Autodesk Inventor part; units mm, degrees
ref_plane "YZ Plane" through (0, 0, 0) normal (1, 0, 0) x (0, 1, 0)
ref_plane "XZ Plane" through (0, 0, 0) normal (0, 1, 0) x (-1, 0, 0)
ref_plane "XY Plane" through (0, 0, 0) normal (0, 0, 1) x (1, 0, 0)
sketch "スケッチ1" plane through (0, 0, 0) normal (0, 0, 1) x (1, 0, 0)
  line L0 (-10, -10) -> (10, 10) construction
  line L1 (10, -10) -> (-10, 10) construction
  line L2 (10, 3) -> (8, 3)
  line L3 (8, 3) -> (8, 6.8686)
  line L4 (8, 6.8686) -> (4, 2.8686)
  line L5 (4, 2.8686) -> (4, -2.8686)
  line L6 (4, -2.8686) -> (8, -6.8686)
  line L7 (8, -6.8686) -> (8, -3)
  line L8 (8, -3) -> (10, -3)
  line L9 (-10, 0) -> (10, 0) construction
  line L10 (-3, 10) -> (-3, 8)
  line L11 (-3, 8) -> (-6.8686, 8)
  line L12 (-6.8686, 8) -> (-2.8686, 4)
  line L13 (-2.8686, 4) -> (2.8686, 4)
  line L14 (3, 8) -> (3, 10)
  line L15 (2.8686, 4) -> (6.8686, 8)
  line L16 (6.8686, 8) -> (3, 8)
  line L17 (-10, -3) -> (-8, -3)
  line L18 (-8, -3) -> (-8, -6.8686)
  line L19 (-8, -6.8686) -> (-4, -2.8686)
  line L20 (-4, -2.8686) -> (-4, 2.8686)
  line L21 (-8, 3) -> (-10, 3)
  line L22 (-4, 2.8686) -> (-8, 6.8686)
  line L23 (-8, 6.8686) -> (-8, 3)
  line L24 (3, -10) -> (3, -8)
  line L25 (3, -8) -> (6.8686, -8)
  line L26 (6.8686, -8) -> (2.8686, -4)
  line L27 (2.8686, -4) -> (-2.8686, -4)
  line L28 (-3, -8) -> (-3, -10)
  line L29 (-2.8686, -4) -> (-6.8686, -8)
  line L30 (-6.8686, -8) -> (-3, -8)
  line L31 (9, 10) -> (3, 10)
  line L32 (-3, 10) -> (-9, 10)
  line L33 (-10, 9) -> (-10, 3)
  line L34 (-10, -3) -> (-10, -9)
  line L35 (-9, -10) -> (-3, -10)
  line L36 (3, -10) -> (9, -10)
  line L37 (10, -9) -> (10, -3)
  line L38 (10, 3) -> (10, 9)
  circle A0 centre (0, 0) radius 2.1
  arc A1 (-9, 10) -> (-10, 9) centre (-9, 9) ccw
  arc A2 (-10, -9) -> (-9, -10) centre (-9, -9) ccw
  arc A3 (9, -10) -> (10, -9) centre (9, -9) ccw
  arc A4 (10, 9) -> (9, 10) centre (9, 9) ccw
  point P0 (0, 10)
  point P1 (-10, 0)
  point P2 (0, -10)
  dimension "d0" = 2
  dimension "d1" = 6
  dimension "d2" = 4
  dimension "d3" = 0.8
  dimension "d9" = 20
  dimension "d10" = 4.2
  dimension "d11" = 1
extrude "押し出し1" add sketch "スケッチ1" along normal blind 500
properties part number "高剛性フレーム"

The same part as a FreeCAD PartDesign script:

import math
import FreeCAD as App
import Part
import Sketcher
Q = App.Units.Quantity

doc = App.newDocument("Part")
body = doc.addObject("PartDesign::Body", "Body")

# Sketch on XY plane
sketch1 = body.newObject("Sketcher::SketchObject", "Sketch")
sketch1.AttachmentSupport = (doc.getObject("XY_Plane"), [""])
sketch1.MapMode = "FlatFace"
sketch1.addGeometry(Part.LineSegment(App.Vector(8, 3, 0), App.Vector(10, 3, 0)), False)
sketch1.addGeometry(Part.LineSegment(App.Vector(10, 3, 0), App.Vector(10, 9, 0)), False)
sketch1.addGeometry(Part.ArcOfCircle(Part.Circle(App.Vector(9, 9, 0), App.Vector(0, 0, 1), 1), math.radians(0), math.radians(90)), False)
sketch1.addGeometry(Part.LineSegment(App.Vector(9, 10, 0), App.Vector(3, 10, 0)), False)
sketch1.addGeometry(Part.LineSegment(App.Vector(3, 10, 0), App.Vector(3, 8, 0)), False)
sketch1.addGeometry(Part.LineSegment(App.Vector(3, 8, 0), App.Vector(6.8686, 8, 0)), False)
sketch1.addGeometry(Part.LineSegment(App.Vector(6.8686, 8, 0), App.Vector(2.8686, 4, 0)), False)
sketch1.addGeometry(Part.LineSegment(App.Vector(2.8686, 4, 0), App.Vector(-2.8686, 4, 0)), False)
sketch1.addGeometry(Part.LineSegment(App.Vector(-2.8686, 4, 0), App.Vector(-6.8686, 8, 0)), False)
sketch1.addGeometry(Part.LineSegment(App.Vector(-6.8686, 8, 0), App.Vector(-3, 8, 0)), False)
sketch1.addGeometry(Part.LineSegment(App.Vector(-3, 8, 0), App.Vector(-3, 10, 0)), False)
sketch1.addGeometry(Part.LineSegment(App.Vector(-3, 10, 0), App.Vector(-9, 10, 0)), False)
sketch1.addGeometry(Part.ArcOfCircle(Part.Circle(App.Vector(-9, 9, 0), App.Vector(0, 0, 1), 1), math.radians(90), math.radians(180)), False)
sketch1.addGeometry(Part.LineSegment(App.Vector(-10, 9, 0), App.Vector(-10, 3, 0)), False)
sketch1.addGeometry(Part.LineSegment(App.Vector(-10, 3, 0), App.Vector(-8, 3, 0)), False)
sketch1.addGeometry(Part.LineSegment(App.Vector(-8, 3, 0), App.Vector(-8, 6.8686, 0)), False)
sketch1.addGeometry(Part.LineSegment(App.Vector(-8, 6.8686, 0), App.Vector(-4, 2.8686, 0)), False)
sketch1.addGeometry(Part.LineSegment(App.Vector(-4, 2.8686, 0), App.Vector(-4, -2.8686, 0)), False)
sketch1.addGeometry(Part.LineSegment(App.Vector(-4, -2.8686, 0), App.Vector(-8, -6.8686, 0)), False)
sketch1.addGeometry(Part.LineSegment(App.Vector(-8, -6.8686, 0), App.Vector(-8, -3, 0)), False)
sketch1.addGeometry(Part.LineSegment(App.Vector(-8, -3, 0), App.Vector(-10, -3, 0)), False)
sketch1.addGeometry(Part.LineSegment(App.Vector(-10, -3, 0), App.Vector(-10, -9, 0)), False)
sketch1.addGeometry(Part.ArcOfCircle(Part.Circle(App.Vector(-9, -9, 0), App.Vector(0, 0, 1), 1), math.radians(180), math.radians(270)), False)
sketch1.addGeometry(Part.LineSegment(App.Vector(-9, -10, 0), App.Vector(-3, -10, 0)), False)
sketch1.addGeometry(Part.LineSegment(App.Vector(-3, -10, 0), App.Vector(-3, -8, 0)), False)
sketch1.addGeometry(Part.LineSegment(App.Vector(-3, -8, 0), App.Vector(-6.8686, -8, 0)), False)
sketch1.addGeometry(Part.LineSegment(App.Vector(-6.8686, -8, 0), App.Vector(-2.8686, -4, 0)), False)
sketch1.addGeometry(Part.LineSegment(App.Vector(-2.8686, -4, 0), App.Vector(2.8686, -4, 0)), False)
sketch1.addGeometry(Part.LineSegment(App.Vector(2.8686, -4, 0), App.Vector(6.8686, -8, 0)), False)
sketch1.addGeometry(Part.LineSegment(App.Vector(6.8686, -8, 0), App.Vector(3, -8, 0)), False)
sketch1.addGeometry(Part.LineSegment(App.Vector(3, -8, 0), App.Vector(3, -10, 0)), False)
sketch1.addGeometry(Part.LineSegment(App.Vector(3, -10, 0), App.Vector(9, -10, 0)), False)
sketch1.addGeometry(Part.ArcOfCircle(Part.Circle(App.Vector(9, -9, 0), App.Vector(0, 0, 1), 1), math.radians(-90), math.radians(0)), False)
sketch1.addGeometry(Part.LineSegment(App.Vector(10, -9, 0), App.Vector(10, -3, 0)), False)
sketch1.addGeometry(Part.LineSegment(App.Vector(10, -3, 0), App.Vector(8, -3, 0)), False)
sketch1.addGeometry(Part.LineSegment(App.Vector(8, -3, 0), App.Vector(8, -6.8686, 0)), False)
sketch1.addGeometry(Part.LineSegment(App.Vector(8, -6.8686, 0), App.Vector(4, -2.8686, 0)), False)
sketch1.addGeometry(Part.LineSegment(App.Vector(4, -2.8686, 0), App.Vector(4, 2.8686, 0)), False)
sketch1.addGeometry(Part.LineSegment(App.Vector(4, 2.8686, 0), App.Vector(8, 6.8686, 0)), False)
sketch1.addGeometry(Part.LineSegment(App.Vector(8, 6.8686, 0), App.Vector(8, 3, 0)), False)
sketch1.addGeometry(Part.Circle(App.Vector(0, 0, 0), App.Vector(0, 0, 1), 2.1), False)
sketch1.addConstraint(Sketcher.Constraint("Coincident", 0, 2, 1, 1))
sketch1.addConstraint(Sketcher.Constraint("Tangent", 1, 2, 2, 1))
sketch1.addConstraint(Sketcher.Constraint("Tangent", 2, 2, 3, 1))
sketch1.addConstraint(Sketcher.Constraint("Coincident", 3, 2, 4, 1))
sketch1.addConstraint(Sketcher.Constraint("Coincident", 4, 2, 5, 1))
sketch1.addConstraint(Sketcher.Constraint("Coincident", 5, 2, 6, 1))
sketch1.addConstraint(Sketcher.Constraint("Coincident", 6, 2, 7, 1))
sketch1.addConstraint(Sketcher.Constraint("Coincident", 7, 2, 8, 1))
sketch1.addConstraint(Sketcher.Constraint("Coincident", 8, 2, 9, 1))
sketch1.addConstraint(Sketcher.Constraint("Coincident", 9, 2, 10, 1))
sketch1.addConstraint(Sketcher.Constraint("Coincident", 10, 2, 11, 1))
sketch1.addConstraint(Sketcher.Constraint("Tangent", 11, 2, 12, 1))
sketch1.addConstraint(Sketcher.Constraint("Tangent", 12, 2, 13, 1))
sketch1.addConstraint(Sketcher.Constraint("Coincident", 13, 2, 14, 1))
sketch1.addConstraint(Sketcher.Constraint("Coincident", 14, 2, 15, 1))
sketch1.addConstraint(Sketcher.Constraint("Coincident", 15, 2, 16, 1))
sketch1.addConstraint(Sketcher.Constraint("Coincident", 16, 2, 17, 1))
sketch1.addConstraint(Sketcher.Constraint("Coincident", 17, 2, 18, 1))
sketch1.addConstraint(Sketcher.Constraint("Coincident", 18, 2, 19, 1))
sketch1.addConstraint(Sketcher.Constraint("Coincident", 19, 2, 20, 1))
sketch1.addConstraint(Sketcher.Constraint("Coincident", 20, 2, 21, 1))
sketch1.addConstraint(Sketcher.Constraint("Tangent", 21, 2, 22, 1))
sketch1.addConstraint(Sketcher.Constraint("Tangent", 22, 2, 23, 1))
sketch1.addConstraint(Sketcher.Constraint("Coincident", 23, 2, 24, 1))
sketch1.addConstraint(Sketcher.Constraint("Coincident", 24, 2, 25, 1))
sketch1.addConstraint(Sketcher.Constraint("Coincident", 25, 2, 26, 1))
sketch1.addConstraint(Sketcher.Constraint("Coincident", 26, 2, 27, 1))
sketch1.addConstraint(Sketcher.Constraint("Coincident", 27, 2, 28, 1))
sketch1.addConstraint(Sketcher.Constraint("Coincident", 28, 2, 29, 1))
sketch1.addConstraint(Sketcher.Constraint("Coincident", 29, 2, 30, 1))
sketch1.addConstraint(Sketcher.Constraint("Coincident", 30, 2, 31, 1))
sketch1.addConstraint(Sketcher.Constraint("Tangent", 31, 2, 32, 1))
sketch1.addConstraint(Sketcher.Constraint("Tangent", 32, 2, 33, 1))
sketch1.addConstraint(Sketcher.Constraint("Coincident", 33, 2, 34, 1))
sketch1.addConstraint(Sketcher.Constraint("Coincident", 34, 2, 35, 1))
sketch1.addConstraint(Sketcher.Constraint("Coincident", 35, 2, 36, 1))
sketch1.addConstraint(Sketcher.Constraint("Coincident", 36, 2, 37, 1))
sketch1.addConstraint(Sketcher.Constraint("Coincident", 37, 2, 38, 1))
sketch1.addConstraint(Sketcher.Constraint("Coincident", 38, 2, 39, 1))
sketch1.addConstraint(Sketcher.Constraint("Coincident", 39, 2, 0, 1))
sketch1.addConstraint(Sketcher.Constraint("Horizontal", 0))
sketch1.addConstraint(Sketcher.Constraint("Vertical", 1))
sketch1.addConstraint(Sketcher.Constraint("Horizontal", 3))
sketch1.addConstraint(Sketcher.Constraint("Vertical", 4))
sketch1.addConstraint(Sketcher.Constraint("Horizontal", 5))
sketch1.addConstraint(Sketcher.Constraint("Horizontal", 7))
sketch1.addConstraint(Sketcher.Constraint("Horizontal", 9))
sketch1.addConstraint(Sketcher.Constraint("Vertical", 10))
sketch1.addConstraint(Sketcher.Constraint("Horizontal", 11))
sketch1.addConstraint(Sketcher.Constraint("Vertical", 13))
sketch1.addConstraint(Sketcher.Constraint("Horizontal", 14))
sketch1.addConstraint(Sketcher.Constraint("Vertical", 15))
sketch1.addConstraint(Sketcher.Constraint("Vertical", 17))
sketch1.addConstraint(Sketcher.Constraint("Vertical", 19))
sketch1.addConstraint(Sketcher.Constraint("Horizontal", 20))
sketch1.addConstraint(Sketcher.Constraint("Vertical", 21))
sketch1.addConstraint(Sketcher.Constraint("Horizontal", 23))
sketch1.addConstraint(Sketcher.Constraint("Vertical", 24))
sketch1.addConstraint(Sketcher.Constraint("Horizontal", 25))
sketch1.addConstraint(Sketcher.Constraint("Horizontal", 27))
sketch1.addConstraint(Sketcher.Constraint("Horizontal", 29))
sketch1.addConstraint(Sketcher.Constraint("Vertical", 30))
sketch1.addConstraint(Sketcher.Constraint("Horizontal", 31))
sketch1.addConstraint(Sketcher.Constraint("Vertical", 33))
sketch1.addConstraint(Sketcher.Constraint("Horizontal", 34))
sketch1.addConstraint(Sketcher.Constraint("Vertical", 35))
sketch1.addConstraint(Sketcher.Constraint("Vertical", 37))
sketch1.addConstraint(Sketcher.Constraint("Vertical", 39))
sketch1.addConstraint(Sketcher.Constraint("Coincident", 40, 3, -1, 1))
sketch1.addConstraint(Sketcher.Constraint("Equal", 2, 12))
sketch1.addConstraint(Sketcher.Constraint("Equal", 12, 22))
sketch1.addConstraint(Sketcher.Constraint("Equal", 22, 32))
sketch1.addConstraint(Sketcher.Constraint("Symmetric", 2, 3, 22, 3, -1, 1))
sketch1.addConstraint(Sketcher.Constraint("Symmetric", 12, 3, 32, 3, -1, 1))
sketch1.addConstraint(Sketcher.Constraint("Symmetric", 4, 2, 24, 2, -1, 1))
sketch1.addConstraint(Sketcher.Constraint("Symmetric", 6, 2, 26, 2, -1, 1))
sketch1.addConstraint(Sketcher.Constraint("Symmetric", 8, 2, 28, 2, -1, 1))
sketch1.addConstraint(Sketcher.Constraint("Symmetric", 14, 2, 34, 2, -1, 1))
sketch1.addConstraint(Sketcher.Constraint("Symmetric", 16, 2, 36, 2, -1, 1))
sketch1.addConstraint(Sketcher.Constraint("Symmetric", 18, 2, 38, 2, -1, 1))
sketch1.addConstraint(Sketcher.Constraint("Symmetric", 2, 3, 12, 3, -2))
sketch1.addConstraint(Sketcher.Constraint("Symmetric", 5, 2, 8, 2, -2))
sketch1.addConstraint(Sketcher.Constraint("Symmetric", 19, 2, 34, 2, -2))
sketch1.addConstraint(Sketcher.Constraint("Perpendicular", 6, 8))
sketch1.addConstraint(Sketcher.Constraint("Parallel", 8, 16))
sketch1.addConstraint(Sketcher.Constraint("Perpendicular", 16, 18))
sketch1.addConstraint(Sketcher.Constraint("Parallel", 18, 26))
sketch1.addConstraint(Sketcher.Constraint("Perpendicular", 26, 28))
sketch1.addConstraint(Sketcher.Constraint("Parallel", 28, 36))
sketch1.addConstraint(Sketcher.Constraint("Perpendicular", 36, 38))
sketch1.addConstraint(Sketcher.Constraint("Horizontal", 0, 2, 13, 2))
sketch1.addConstraint(Sketcher.Constraint("Horizontal", 18, 2, 35, 2))
sketch1.addConstraint(Sketcher.Constraint("Horizontal", 17, 2, 36, 2))
sketch1.addConstraint(Sketcher.Constraint("Vertical", 10, 2, 23, 2))
sketch1.addConstraint(Sketcher.Constraint("Vertical", 4, 2, 29, 2))
sketch1.addConstraint(Sketcher.Constraint("Equal", 31, 1))
sketch1.addConstraint(Sketcher.Constraint("Equal", 34, 4))
sketch1.addConstraint(Sketcher.Constraint("Equal", 29, 15))
sketch1.addConstraint(Sketcher.Constraint("Equal", 27, 17))
sketch1.addConstraint(Sketcher.Constraint("Equal", 8, 16))
sketch1.addConstraint(Sketcher.Constraint("Radius", 2, Q("1 mm")))
sketch1.addConstraint(Sketcher.Constraint("Diameter", 40, Q("4.2 mm")))
sketch1.addConstraint(Sketcher.Constraint("DistanceX", 0, 1, 0, 2, Q("2 mm")))
sketch1.addConstraint(Sketcher.Constraint("DistanceX", 3, 2, 3, 1, Q("6 mm")))
sketch1.addConstraint(Sketcher.Constraint("DistanceY", -1, 1, 6, 2, Q("4 mm")))
sketch1.addConstraint(Sketcher.Constraint("DistanceY", 6, 2, 4, 2, Q("4 mm")))
sketch1.addConstraint(Sketcher.Constraint("DistanceX", 5, 1, 5, 2, Q("3.8686 mm")))
pad1 = body.newObject("PartDesign::Pad", "Pad")
pad1.Profile = sketch1
pad1.Length = 500

doc.recompute()
